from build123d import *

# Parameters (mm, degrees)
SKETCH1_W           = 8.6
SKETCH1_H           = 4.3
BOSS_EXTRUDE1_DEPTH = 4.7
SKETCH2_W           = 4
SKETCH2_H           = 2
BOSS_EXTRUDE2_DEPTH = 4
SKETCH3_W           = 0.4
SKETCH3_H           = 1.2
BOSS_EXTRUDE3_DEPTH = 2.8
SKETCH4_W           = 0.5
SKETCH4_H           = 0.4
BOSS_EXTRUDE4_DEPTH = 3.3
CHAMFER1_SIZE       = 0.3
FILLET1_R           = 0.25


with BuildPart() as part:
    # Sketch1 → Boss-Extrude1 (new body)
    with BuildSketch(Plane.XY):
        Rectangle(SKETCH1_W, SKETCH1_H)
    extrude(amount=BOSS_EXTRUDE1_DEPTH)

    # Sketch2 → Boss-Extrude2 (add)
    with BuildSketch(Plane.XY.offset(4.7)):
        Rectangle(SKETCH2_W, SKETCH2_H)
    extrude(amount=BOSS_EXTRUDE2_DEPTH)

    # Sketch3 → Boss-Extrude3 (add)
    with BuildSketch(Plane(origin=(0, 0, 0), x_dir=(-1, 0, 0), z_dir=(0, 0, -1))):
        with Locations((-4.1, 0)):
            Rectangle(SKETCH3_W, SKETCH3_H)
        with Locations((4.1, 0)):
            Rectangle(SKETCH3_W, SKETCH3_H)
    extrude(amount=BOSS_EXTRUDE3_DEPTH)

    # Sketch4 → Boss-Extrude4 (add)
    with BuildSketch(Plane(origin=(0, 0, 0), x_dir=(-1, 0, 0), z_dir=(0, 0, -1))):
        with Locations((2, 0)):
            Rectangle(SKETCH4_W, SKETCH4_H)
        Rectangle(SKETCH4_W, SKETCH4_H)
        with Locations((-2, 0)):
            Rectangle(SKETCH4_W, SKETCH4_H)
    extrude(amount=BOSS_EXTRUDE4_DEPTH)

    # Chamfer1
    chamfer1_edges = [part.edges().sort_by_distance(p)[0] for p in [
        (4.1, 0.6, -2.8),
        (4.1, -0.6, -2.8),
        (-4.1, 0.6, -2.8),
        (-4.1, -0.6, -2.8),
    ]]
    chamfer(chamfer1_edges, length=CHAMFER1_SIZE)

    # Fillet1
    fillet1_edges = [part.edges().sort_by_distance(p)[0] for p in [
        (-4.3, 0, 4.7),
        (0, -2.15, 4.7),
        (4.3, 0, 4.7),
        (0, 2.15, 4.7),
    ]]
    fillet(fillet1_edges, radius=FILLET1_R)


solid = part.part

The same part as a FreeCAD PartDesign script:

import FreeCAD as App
import Part
import Sketcher

V = App.Vector
Q = App.Units.Quantity


def edges_at(feature, points):
    """Names of the edges that pass closest to the given points."""
    edges = feature.Shape.Edges
    near = lambda p: min(range(len(edges)), key=lambda i: edges[i].distToShape(Part.Vertex(*p))[0])
    return sorted({f"Edge{near(p) + 1}" for p in points})


def add_polygon(sketch, points):
    """Adds a closed chain of lines whose ends are joined by coincident constraints."""
    first, n = sketch.GeometryCount, len(points)
    for a, b in zip(points, points[1:] + points[:1]):
        sketch.addGeometry(Part.LineSegment(App.Vector(*a, 0), App.Vector(*b, 0)), False)
    for i in range(n):
        sketch.addConstraint(Sketcher.Constraint("Coincident", first + i, 2, first + (i + 1) % n, 1))

doc = App.newDocument("Part")
body = doc.addObject("PartDesign::Body", "Body")

# Sketch on XY plane
sketch1 = body.newObject("Sketcher::SketchObject", "Sketch")
sketch1.AttachmentSupport = (doc.getObject("XY_Plane"), [""])
sketch1.MapMode = "FlatFace"
add_polygon(sketch1, [(-4.3, 2.15), (-4.3, -2.15), (4.3, -2.15), (4.3, 2.15)])  # lines 0-3
sketch1.addConstraint(Sketcher.Constraint("Vertical", 0))
sketch1.addConstraint(Sketcher.Constraint("Horizontal", 1))
sketch1.addConstraint(Sketcher.Constraint("Vertical", 2))
sketch1.addConstraint(Sketcher.Constraint("Horizontal", 3))
sketch1.addConstraint(Sketcher.Constraint("Symmetric", 0, 2, 2, 2, -1, 1))
sketch1.addConstraint(Sketcher.Constraint("DistanceX", 1, 1, 1, 2, Q("8.6 mm")))
sketch1.addConstraint(Sketcher.Constraint("DistanceY", 0, 2, 0, 1, Q("4.3 mm")))
pad1 = body.newObject("PartDesign::Pad", "Pad")
pad1.Profile = sketch1
pad1.Length = 4.7

# Sketch on XY plane
sketch2 = body.newObject("Sketcher::SketchObject", "Sketch001")
sketch2.AttachmentSupport = (doc.getObject("XY_Plane"), [""])
sketch2.MapMode = "FlatFace"
sketch2.AttachmentOffset = App.Placement(V(0, 0, 4.7), App.Rotation())
add_polygon(sketch2, [(-2, 1), (-2, -1), (2, -1), (2, 1)])  # lines 0-3
sketch2.addConstraint(Sketcher.Constraint("Vertical", 0))
sketch2.addConstraint(Sketcher.Constraint("Horizontal", 1))
sketch2.addConstraint(Sketcher.Constraint("Vertical", 2))
sketch2.addConstraint(Sketcher.Constraint("Horizontal", 3))
sketch2.addConstraint(Sketcher.Constraint("Symmetric", 0, 2, 2, 2, -1, 1))
sketch2.addConstraint(Sketcher.Constraint("DistanceX", 1, 1, 1, 2, Q("4 mm")))
sketch2.addConstraint(Sketcher.Constraint("DistanceY", 0, 2, 0, 1, Q("2 mm")))
pad2 = body.newObject("PartDesign::Pad", "Pad001")
pad2.Profile = sketch2
pad2.Length = 4

# Sketch on XY plane
sketch3 = body.newObject("Sketcher::SketchObject", "Sketch002")
sketch3.AttachmentSupport = (doc.getObject("XY_Plane"), [""])
sketch3.MapMode = "FlatFace"
add_polygon(sketch3, [(4.3, 0.6), (4.3, -0.6), (3.9, -0.6), (3.9, 0.6)])  # lines 0-3
add_polygon(sketch3, [(-3.9, 0.6), (-3.9, -0.6), (-4.3, -0.6), (-4.3, 0.6)])  # lines 4-7
sketch3.addConstraint(Sketcher.Constraint("Vertical", 0))
sketch3.addConstraint(Sketcher.Constraint("Horizontal", 1))
sketch3.addConstraint(Sketcher.Constraint("Vertical", 2))
sketch3.addConstraint(Sketcher.Constraint("Horizontal", 3))
sketch3.addConstraint(Sketcher.Constraint("Vertical", 4))
sketch3.addConstraint(Sketcher.Constraint("Horizontal", 5))
sketch3.addConstraint(Sketcher.Constraint("Vertical", 6))
sketch3.addConstraint(Sketcher.Constraint("Horizontal", 7))
sketch3.addConstraint(Sketcher.Constraint("Symmetric", 2, 2, 4, 2, -1, 1))
sketch3.addConstraint(Sketcher.Constraint("Symmetric", 0, 2, 6, 2, -1, 1))
sketch3.addConstraint(Sketcher.Constraint("Horizontal", 1, 2, 4, 2))
sketch3.addConstraint(Sketcher.Constraint("DistanceX", 1, 2, 1, 1, Q("0.4 mm")))
sketch3.addConstraint(Sketcher.Constraint("DistanceY", 0, 2, 0, 1, Q("1.2 mm")))
sketch3.addConstraint(Sketcher.Constraint("DistanceX", -1, 1, 0, 2, Q("4.3 mm")))
pad3 = body.newObject("PartDesign::Pad", "Pad002")
pad3.Profile = sketch3
pad3.Length = 2.8
pad3.Reversed = True

# Sketch on XY plane
sketch4 = body.newObject("Sketcher::SketchObject", "Sketch003")
sketch4.AttachmentSupport = (doc.getObject("XY_Plane"), [""])
sketch4.MapMode = "FlatFace"
add_polygon(sketch4, [(-1.75, 0.2), (-1.75, -0.2), (-2.25, -0.2), (-2.25, 0.2)])  # lines 0-3
add_polygon(sketch4, [(0.25, 0.2), (0.25, -0.2), (-0.25, -0.2), (-0.25, 0.2)])  # lines 4-7
add_polygon(sketch4, [(2.25, 0.2), (2.25, -0.2), (1.75, -0.2), (1.75, 0.2)])  # lines 8-11
sketch4.addConstraint(Sketcher.Constraint("Vertical", 0))
sketch4.addConstraint(Sketcher.Constraint("Horizontal", 1))
sketch4.addConstraint(Sketcher.Constraint("Vertical", 2))
sketch4.addConstraint(Sketcher.Constraint("Horizontal", 3))
sketch4.addConstraint(Sketcher.Constraint("Vertical", 4))
sketch4.addConstraint(Sketcher.Constraint("Horizontal", 5))
sketch4.addConstraint(Sketcher.Constraint("Vertical", 6))
sketch4.addConstraint(Sketcher.Constraint("Horizontal", 7))
sketch4.addConstraint(Sketcher.Constraint("Vertical", 8))
sketch4.addConstraint(Sketcher.Constraint("Horizontal", 9))
sketch4.addConstraint(Sketcher.Constraint("Vertical", 10))
sketch4.addConstraint(Sketcher.Constraint("Horizontal", 11))
sketch4.addConstraint(Sketcher.Constraint("Symmetric", 4, 2, 6, 2, -1, 1))
sketch4.addConstraint(Sketcher.Constraint("Symmetric", 2, 2, 8, 2, -1, 1))
sketch4.addConstraint(Sketcher.Constraint("Symmetric", 0, 2, 10, 2, -1, 1))
sketch4.addConstraint(Sketcher.Constraint("Horizontal", 1, 2, 4, 2))
sketch4.addConstraint(Sketcher.Constraint("Horizontal", 3, 2, 6, 2))
sketch4.addConstraint(Sketcher.Constraint("Equal", 3, 5))
sketch4.addConstraint(Sketcher.Constraint("DistanceX", 1, 2, 1, 1, Q("0.5 mm")))
sketch4.addConstraint(Sketcher.Constraint("DistanceY", 0, 2, 0, 1, Q("0.4 mm")))
sketch4.addConstraint(Sketcher.Constraint("DistanceX", 0, 2, 4, 2, Q("2 mm")))
pad4 = body.newObject("PartDesign::Pad", "Pad003")
pad4.Profile = sketch4
pad4.Length = 3.3
pad4.Reversed = True
doc.recompute()

chamfer = body.newObject("PartDesign::Chamfer", "Chamfer")
chamfer.Base = (pad4, edges_at(pad4, [
    (4.1, 0.6, -2.8),
    (4.1, -0.6, -2.8),
    (-4.1, 0.6, -2.8),
    (-4.1, -0.6, -2.8),
]))
chamfer.Size = 0.3
doc.recompute()

fillet = body.newObject("PartDesign::Fillet", "Fillet")
fillet.Base = (chamfer, edges_at(chamfer, [
    (-4.3, 0, 4.7),
    (0, -2.15, 4.7),
    (4.3, 0, 4.7),
    (0, 2.15, 4.7),
]))
fillet.Radius = 0.25

doc.recompute()
